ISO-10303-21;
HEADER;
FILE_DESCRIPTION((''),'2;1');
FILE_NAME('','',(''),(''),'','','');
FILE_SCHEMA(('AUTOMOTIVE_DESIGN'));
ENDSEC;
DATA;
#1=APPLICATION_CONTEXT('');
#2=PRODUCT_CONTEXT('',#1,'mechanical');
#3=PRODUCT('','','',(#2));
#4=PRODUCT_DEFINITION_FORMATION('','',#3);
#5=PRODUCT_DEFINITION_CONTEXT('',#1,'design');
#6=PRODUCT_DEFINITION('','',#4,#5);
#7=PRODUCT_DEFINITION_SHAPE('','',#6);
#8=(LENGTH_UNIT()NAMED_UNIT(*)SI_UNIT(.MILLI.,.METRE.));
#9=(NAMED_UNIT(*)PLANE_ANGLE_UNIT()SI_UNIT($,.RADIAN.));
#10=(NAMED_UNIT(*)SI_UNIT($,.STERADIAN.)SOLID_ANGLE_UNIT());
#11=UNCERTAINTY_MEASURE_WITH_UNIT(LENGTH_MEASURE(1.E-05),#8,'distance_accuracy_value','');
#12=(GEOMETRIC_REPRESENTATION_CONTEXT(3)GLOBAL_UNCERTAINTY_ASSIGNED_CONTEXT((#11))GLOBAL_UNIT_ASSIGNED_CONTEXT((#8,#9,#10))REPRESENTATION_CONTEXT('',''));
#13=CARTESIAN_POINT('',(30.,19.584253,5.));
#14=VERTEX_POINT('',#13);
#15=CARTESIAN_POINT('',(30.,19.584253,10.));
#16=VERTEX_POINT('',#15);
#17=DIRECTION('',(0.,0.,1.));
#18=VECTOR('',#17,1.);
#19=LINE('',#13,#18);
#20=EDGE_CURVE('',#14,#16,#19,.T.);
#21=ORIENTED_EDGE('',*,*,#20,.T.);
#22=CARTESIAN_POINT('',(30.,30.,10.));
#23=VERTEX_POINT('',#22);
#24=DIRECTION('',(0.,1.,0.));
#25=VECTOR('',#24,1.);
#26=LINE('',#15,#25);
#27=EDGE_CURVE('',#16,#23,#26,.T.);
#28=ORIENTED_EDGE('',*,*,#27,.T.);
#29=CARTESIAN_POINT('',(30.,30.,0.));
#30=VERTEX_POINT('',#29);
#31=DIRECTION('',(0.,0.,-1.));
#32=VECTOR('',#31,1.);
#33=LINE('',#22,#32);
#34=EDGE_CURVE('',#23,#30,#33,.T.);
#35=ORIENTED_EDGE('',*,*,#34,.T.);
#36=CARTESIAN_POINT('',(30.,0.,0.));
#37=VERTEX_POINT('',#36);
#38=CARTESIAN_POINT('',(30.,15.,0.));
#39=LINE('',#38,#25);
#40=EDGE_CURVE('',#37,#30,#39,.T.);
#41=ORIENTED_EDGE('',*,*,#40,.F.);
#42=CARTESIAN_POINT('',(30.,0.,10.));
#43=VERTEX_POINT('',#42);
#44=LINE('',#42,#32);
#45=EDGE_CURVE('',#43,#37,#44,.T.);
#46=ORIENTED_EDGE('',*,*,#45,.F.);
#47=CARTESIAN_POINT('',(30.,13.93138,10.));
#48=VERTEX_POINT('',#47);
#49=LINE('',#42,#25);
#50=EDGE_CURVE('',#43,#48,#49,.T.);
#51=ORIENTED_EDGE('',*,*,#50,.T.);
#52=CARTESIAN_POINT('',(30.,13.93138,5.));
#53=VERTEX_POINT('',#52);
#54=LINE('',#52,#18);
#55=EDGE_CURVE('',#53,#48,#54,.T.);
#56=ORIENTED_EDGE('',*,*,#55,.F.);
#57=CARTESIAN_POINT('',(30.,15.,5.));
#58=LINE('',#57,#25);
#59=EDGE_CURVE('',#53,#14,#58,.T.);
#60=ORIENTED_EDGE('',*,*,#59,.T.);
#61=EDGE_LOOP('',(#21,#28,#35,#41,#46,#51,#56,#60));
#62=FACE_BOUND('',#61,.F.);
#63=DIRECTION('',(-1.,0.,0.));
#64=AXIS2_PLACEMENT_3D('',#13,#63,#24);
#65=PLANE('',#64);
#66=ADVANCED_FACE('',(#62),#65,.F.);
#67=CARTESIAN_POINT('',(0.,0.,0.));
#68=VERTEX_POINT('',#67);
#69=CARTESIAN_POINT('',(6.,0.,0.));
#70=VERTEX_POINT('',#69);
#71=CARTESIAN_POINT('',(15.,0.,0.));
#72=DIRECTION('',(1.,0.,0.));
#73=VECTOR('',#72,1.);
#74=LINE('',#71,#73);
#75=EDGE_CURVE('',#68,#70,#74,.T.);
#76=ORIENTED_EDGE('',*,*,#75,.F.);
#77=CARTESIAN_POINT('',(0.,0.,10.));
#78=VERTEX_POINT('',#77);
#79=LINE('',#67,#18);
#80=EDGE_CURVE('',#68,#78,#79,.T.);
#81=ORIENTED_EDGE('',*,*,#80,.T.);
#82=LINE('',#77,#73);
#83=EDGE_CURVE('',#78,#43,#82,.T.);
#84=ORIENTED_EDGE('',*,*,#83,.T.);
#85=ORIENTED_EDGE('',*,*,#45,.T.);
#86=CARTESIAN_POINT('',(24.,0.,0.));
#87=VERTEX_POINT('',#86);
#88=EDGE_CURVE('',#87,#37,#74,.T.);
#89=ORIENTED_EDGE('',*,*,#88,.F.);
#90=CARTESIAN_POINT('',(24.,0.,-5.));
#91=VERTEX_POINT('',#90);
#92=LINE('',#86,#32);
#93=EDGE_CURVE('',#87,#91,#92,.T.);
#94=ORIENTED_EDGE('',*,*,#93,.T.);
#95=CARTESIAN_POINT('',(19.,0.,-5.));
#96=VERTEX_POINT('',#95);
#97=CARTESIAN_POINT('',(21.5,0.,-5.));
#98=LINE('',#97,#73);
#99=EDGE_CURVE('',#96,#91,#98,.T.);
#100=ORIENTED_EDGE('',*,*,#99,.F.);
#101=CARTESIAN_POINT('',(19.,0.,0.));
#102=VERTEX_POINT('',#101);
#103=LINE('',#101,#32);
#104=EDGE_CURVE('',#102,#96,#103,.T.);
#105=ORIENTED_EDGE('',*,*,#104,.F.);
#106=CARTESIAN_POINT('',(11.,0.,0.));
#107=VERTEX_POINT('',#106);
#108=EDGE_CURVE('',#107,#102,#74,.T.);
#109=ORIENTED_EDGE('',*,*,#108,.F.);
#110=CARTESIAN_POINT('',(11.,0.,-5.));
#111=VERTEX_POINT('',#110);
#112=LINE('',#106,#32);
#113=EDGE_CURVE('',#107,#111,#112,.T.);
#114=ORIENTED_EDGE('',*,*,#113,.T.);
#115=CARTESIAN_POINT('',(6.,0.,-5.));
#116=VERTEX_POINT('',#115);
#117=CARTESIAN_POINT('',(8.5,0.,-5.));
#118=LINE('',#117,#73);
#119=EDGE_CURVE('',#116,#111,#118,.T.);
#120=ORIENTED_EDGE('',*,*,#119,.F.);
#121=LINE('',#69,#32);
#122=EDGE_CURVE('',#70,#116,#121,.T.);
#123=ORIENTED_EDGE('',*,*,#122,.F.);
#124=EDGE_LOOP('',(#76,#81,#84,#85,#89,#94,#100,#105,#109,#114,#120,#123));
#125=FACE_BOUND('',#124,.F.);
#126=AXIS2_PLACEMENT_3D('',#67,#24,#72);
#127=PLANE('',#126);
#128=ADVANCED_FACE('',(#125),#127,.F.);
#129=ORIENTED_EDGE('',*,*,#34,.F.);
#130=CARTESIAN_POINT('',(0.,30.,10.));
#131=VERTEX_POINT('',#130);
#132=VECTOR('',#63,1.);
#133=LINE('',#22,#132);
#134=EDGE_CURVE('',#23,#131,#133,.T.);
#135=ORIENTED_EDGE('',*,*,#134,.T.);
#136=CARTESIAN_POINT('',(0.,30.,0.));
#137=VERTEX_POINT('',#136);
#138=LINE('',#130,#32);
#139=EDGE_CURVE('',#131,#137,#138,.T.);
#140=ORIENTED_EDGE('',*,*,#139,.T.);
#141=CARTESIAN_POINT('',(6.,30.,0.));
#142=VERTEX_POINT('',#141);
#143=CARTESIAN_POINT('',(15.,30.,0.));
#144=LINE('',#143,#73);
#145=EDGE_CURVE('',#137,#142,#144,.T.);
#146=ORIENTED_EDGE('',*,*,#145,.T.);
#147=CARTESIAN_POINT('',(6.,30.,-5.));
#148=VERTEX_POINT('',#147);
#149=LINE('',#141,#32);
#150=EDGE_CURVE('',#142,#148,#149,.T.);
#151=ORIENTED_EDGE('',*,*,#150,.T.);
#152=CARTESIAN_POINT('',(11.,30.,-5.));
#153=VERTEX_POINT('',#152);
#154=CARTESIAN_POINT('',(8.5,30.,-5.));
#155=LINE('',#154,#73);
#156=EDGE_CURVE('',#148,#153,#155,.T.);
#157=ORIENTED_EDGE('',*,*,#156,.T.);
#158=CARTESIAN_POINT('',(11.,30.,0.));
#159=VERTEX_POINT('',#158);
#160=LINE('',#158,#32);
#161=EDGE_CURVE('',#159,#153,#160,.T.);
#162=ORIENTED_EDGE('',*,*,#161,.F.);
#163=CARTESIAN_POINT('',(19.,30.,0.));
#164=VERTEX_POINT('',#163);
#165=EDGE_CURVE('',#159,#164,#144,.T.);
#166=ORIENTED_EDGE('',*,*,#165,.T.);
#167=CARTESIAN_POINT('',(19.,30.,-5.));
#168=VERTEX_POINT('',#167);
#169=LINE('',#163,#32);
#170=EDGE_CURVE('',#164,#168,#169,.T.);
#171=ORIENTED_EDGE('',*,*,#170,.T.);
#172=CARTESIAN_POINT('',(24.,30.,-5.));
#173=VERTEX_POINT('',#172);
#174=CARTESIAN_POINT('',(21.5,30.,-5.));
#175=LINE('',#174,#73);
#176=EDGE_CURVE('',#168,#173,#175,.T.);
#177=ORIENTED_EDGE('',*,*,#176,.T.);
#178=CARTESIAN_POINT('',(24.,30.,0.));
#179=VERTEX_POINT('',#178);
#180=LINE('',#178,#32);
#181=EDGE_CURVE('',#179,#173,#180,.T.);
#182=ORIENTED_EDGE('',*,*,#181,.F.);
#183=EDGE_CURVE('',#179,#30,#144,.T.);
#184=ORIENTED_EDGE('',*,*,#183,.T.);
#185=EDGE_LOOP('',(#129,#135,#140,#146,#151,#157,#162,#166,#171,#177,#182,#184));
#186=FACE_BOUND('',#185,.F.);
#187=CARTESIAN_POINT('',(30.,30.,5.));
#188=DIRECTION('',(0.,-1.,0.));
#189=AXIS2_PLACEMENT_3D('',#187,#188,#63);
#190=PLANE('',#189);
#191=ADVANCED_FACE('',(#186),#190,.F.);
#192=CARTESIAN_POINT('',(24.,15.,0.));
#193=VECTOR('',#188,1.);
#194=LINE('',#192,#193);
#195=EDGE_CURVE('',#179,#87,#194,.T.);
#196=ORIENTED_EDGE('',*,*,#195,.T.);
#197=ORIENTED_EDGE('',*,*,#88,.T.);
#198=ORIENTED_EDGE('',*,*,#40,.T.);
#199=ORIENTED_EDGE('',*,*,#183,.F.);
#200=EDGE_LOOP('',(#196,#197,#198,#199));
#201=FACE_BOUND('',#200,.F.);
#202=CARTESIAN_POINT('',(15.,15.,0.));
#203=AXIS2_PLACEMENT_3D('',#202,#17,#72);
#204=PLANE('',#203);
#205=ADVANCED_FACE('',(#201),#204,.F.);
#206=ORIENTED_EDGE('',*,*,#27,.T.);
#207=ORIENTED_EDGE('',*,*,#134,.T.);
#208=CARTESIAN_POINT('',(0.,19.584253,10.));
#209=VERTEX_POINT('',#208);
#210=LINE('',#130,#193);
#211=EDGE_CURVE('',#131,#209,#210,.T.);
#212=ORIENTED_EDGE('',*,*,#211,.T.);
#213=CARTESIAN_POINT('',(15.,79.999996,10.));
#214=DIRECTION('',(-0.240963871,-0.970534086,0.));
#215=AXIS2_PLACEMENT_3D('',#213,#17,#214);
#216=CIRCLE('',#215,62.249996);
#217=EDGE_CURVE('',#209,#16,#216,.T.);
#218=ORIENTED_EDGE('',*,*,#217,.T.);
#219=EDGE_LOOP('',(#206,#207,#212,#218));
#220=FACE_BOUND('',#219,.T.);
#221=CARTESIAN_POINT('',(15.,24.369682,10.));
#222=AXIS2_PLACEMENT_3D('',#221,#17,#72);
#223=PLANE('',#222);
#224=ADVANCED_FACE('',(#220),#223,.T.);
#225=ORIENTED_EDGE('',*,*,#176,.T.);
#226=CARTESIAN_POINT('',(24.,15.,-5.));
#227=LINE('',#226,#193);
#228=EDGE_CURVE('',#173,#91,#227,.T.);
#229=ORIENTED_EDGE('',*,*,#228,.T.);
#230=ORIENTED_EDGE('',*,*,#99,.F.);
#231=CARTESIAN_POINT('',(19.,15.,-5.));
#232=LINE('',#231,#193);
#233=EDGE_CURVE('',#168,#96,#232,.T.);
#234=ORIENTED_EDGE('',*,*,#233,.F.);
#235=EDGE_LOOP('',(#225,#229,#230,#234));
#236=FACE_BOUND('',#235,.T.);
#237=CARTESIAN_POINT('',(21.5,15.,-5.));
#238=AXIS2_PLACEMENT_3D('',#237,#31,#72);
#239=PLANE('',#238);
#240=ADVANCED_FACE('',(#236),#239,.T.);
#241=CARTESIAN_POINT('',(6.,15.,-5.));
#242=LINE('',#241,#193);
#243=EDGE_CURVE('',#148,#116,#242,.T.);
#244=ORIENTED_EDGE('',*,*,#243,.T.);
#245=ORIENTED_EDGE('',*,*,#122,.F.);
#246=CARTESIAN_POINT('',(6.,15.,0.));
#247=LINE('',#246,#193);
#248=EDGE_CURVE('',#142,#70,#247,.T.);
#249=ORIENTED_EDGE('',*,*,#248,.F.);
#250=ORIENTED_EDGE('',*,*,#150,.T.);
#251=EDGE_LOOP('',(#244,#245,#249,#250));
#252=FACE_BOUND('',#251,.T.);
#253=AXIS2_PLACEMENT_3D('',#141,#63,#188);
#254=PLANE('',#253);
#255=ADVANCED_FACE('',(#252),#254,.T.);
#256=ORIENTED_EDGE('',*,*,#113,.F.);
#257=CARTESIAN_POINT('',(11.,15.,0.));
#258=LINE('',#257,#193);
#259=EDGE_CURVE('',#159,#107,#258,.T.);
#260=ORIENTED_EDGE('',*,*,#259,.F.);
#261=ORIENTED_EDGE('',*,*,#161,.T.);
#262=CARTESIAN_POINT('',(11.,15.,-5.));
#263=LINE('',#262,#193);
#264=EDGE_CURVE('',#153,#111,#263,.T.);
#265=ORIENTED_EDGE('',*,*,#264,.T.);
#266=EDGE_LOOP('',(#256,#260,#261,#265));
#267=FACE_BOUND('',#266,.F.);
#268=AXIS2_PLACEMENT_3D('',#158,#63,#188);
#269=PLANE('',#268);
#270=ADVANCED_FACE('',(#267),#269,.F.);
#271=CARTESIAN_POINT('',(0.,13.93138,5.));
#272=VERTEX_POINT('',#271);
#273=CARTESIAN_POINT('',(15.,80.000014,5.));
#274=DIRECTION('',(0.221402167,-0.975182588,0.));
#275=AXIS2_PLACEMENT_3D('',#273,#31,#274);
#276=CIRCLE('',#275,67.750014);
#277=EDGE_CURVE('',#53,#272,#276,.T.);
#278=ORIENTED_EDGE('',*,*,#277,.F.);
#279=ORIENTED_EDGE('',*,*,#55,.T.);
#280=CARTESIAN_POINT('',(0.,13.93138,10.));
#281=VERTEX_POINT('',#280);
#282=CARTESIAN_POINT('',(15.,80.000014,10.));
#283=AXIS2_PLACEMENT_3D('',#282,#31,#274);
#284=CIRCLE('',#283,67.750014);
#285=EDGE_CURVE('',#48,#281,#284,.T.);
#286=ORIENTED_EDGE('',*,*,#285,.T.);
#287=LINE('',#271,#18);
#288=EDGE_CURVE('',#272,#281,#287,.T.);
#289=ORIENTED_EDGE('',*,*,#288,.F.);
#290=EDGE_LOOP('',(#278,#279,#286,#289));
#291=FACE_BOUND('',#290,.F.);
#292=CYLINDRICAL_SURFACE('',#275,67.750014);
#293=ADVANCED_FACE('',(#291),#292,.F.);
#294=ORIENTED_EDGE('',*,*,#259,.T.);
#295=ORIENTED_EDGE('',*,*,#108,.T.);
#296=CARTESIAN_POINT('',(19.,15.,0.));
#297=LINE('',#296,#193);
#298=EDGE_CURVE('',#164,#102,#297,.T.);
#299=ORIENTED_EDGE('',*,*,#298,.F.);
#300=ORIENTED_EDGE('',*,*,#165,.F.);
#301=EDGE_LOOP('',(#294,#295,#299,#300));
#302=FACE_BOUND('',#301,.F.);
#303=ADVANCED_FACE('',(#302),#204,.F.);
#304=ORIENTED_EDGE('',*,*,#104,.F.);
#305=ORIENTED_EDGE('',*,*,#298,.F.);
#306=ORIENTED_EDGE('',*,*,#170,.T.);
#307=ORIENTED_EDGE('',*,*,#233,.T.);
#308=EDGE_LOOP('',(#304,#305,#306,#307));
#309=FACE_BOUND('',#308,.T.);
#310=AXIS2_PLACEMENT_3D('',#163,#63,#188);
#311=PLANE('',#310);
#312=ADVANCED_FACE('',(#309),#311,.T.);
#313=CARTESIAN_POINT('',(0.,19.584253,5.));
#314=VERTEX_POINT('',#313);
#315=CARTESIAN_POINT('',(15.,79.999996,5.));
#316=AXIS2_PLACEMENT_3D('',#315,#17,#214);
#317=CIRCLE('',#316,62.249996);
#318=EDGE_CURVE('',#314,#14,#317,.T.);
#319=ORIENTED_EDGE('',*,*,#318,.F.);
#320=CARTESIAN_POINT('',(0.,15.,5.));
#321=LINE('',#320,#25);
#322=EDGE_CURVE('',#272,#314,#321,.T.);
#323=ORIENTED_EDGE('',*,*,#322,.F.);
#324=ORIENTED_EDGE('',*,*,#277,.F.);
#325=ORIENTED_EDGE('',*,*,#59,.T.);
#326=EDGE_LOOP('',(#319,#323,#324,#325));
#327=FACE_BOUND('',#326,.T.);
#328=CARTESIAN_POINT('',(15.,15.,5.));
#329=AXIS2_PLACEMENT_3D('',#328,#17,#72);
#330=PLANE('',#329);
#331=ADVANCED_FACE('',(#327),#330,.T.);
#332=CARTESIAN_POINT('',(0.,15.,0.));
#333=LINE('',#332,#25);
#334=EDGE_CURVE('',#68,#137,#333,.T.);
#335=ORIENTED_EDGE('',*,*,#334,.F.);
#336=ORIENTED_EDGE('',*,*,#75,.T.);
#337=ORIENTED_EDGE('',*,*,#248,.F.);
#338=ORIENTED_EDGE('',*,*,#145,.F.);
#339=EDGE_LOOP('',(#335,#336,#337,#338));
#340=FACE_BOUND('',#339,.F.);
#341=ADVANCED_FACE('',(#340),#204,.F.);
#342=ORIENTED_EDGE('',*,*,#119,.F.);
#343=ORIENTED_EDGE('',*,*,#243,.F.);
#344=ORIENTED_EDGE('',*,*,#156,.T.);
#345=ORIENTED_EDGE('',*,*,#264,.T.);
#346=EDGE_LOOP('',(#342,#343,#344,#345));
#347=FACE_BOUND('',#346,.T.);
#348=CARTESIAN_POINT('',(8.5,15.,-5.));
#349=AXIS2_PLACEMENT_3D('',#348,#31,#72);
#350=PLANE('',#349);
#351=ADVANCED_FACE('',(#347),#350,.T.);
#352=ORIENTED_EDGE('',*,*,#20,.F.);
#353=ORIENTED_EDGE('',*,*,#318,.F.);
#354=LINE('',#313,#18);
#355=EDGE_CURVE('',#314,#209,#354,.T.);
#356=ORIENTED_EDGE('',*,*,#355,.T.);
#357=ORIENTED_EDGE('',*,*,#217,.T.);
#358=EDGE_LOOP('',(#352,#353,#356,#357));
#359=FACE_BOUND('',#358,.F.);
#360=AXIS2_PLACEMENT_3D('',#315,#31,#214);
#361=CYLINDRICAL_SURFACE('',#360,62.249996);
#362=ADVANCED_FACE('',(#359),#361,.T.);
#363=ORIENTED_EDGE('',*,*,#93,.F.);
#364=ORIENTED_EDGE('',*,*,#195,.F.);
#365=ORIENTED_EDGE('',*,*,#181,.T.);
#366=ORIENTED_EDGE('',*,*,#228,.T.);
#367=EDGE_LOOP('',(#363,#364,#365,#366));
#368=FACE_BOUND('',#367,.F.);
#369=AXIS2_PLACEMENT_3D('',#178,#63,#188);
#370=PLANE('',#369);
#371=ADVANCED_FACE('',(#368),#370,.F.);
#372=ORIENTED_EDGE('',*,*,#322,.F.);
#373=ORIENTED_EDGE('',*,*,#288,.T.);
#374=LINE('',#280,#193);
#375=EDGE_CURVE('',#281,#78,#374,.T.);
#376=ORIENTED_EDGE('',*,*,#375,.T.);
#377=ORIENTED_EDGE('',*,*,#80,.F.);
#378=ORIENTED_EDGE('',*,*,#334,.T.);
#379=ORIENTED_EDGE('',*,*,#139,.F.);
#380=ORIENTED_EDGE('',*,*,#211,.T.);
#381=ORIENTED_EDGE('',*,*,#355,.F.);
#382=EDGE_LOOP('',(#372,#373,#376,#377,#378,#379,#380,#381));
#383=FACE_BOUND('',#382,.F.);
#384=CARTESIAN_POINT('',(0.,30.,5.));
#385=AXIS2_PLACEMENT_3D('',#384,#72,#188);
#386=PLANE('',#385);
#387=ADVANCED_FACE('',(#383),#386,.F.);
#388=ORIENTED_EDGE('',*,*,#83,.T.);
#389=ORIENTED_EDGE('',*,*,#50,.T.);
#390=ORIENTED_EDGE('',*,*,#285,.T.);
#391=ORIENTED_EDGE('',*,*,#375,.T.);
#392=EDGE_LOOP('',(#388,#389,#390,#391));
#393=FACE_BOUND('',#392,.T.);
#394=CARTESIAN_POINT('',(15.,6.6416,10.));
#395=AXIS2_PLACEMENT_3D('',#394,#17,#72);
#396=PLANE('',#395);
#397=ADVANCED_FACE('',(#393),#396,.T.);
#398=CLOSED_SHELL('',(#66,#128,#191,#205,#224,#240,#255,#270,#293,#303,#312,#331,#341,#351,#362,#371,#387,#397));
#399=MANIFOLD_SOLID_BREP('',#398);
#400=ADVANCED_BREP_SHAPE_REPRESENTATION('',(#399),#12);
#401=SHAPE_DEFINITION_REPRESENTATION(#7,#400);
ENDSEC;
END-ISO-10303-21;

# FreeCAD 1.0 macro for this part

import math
import FreeCAD as App
import Part
import Sketcher
from FreeCAD import Vector
Q = App.Units.Quantity

doc = App.newDocument("Part")
body = doc.addObject("PartDesign::Body", "Body")

sketch1 = doc.addObject("Sketcher::SketchObject", "Sketch")
body.addObject(sketch1)
sketch1.AttachmentSupport = (doc.XY_Plane, [""])
sketch1.MapMode = "FlatFace"
sketch1.addGeometry([
    Part.LineSegment(Vector(0, 30, 0), Vector(0, 0, 0)),
    Part.LineSegment(Vector(0, 0, 0), Vector(30, 0, 0)),
    Part.LineSegment(Vector(30, 0, 0), Vector(30, 30, 0)),
    Part.LineSegment(Vector(30, 30, 0), Vector(0, 30, 0)),
], False)
sketch1.addConstraint([
    Sketcher.Constraint("Coincident", 0, 2, 1, 1),
    Sketcher.Constraint("Coincident", 1, 2, 2, 1),
    Sketcher.Constraint("Coincident", 2, 2, 3, 1),
    Sketcher.Constraint("Coincident", 3, 2, 0, 1),
    Sketcher.Constraint("Vertical", 0),
    Sketcher.Constraint("Horizontal", 1),
    Sketcher.Constraint("Vertical", 2),
    Sketcher.Constraint("Horizontal", 3),
    Sketcher.Constraint("Coincident", 0, 2, -1, 1),
    Sketcher.Constraint("Equal", 3, 0),
    Sketcher.Constraint("DistanceX", 1, 1, 1, 2, Q("30 mm")),
])
pad1 = doc.addObject("PartDesign::Pad", "Pad")
body.addObject(pad1)
pad1.Profile = sketch1
pad1.Length = 5

sketch2 = doc.addObject("Sketcher::SketchObject", "Sketch001")
body.addObject(sketch2)
sketch2.AttachmentSupport = (doc.XY_Plane, [""])
sketch2.MapMode = "FlatFace"
sketch2.AttachmentOffset = App.Placement(Vector(0, 0, 5), App.Rotation())
sketch2.addGeometry([
    Part.LineSegment(Vector(0, 30, 0), Vector(0, 19.584253, 0)),
    Part.ArcOfCircle(Part.Circle(Vector(15, 79.999996, 0), Vector(0, 0, 1), 62.249996), math.radians(-103.943436), math.radians(-76.056564)),
    Part.LineSegment(Vector(30, 19.584253, 0), Vector(30, 30, 0)),
    Part.LineSegment(Vector(30, 30, 0), Vector(0, 30, 0)),
    Part.LineSegment(Vector(30, 0, 0), Vector(30, 13.93138, 0)),
    Part.ArcOfCircle(Part.Circle(Vector(15, 80.000014, 0), Vector(0, 0, 1), 67.750014), math.radians(-102.791402), math.radians(-77.208598)),
    Part.LineSegment(Vector(0, 13.93138, 0), Vector(0, 0, 0)),
    Part.LineSegment(Vector(0, 0, 0), Vector(30, 0, 0)),
], False)
sketch2.addConstraint([
    Sketcher.Constraint("Coincident", 0, 2, 1, 1),
    Sketcher.Constraint("Coincident", 1, 2, 2, 1),
    Sketcher.Constraint("Coincident", 2, 2, 3, 1),
    Sketcher.Constraint("Coincident", 3, 2, 0, 1),
    Sketcher.Constraint("Coincident", 4, 2, 5, 2),
    Sketcher.Constraint("Coincident", 5, 1, 6, 1),
    Sketcher.Constraint("Coincident", 6, 2, 7, 1),
    Sketcher.Constraint("Coincident", 7, 2, 4, 1),
    Sketcher.Constraint("Vertical", 0),
    Sketcher.Constraint("Vertical", 2),
    Sketcher.Constraint("Horizontal", 3),
    Sketcher.Constraint("Vertical", 4),
    Sketcher.Constraint("Vertical", 6),
    Sketcher.Constraint("Horizontal", 7),
    Sketcher.Constraint("Coincident", 6, 2, -1, 1),
    Sketcher.Constraint("PointOnObject", 0, 2, -2),
    Sketcher.Constraint("Horizontal", 0, 2, 1, 2),
    Sketcher.Constraint("Horizontal", 4, 2, 5, 1),
    Sketcher.Constraint("Vertical", 1, 3, 5, 3),
    Sketcher.Constraint("DistanceX", 3, 2, 3, 1, Q("30 mm")),
    Sketcher.Constraint("DistanceY", -1, 1, 2, 2, Q("30 mm")),
    Sketcher.Constraint("Radius", 1, Q("62.249996 mm")),
    Sketcher.Constraint("Radius", 5, Q("67.750014 mm")),
    Sketcher.Constraint("DistanceY", 4, 1, 4, 2, Q("13.93138 mm")),
    Sketcher.Constraint("DistanceY", 0, 2, 0, 1, Q("10.415747 mm")),
])
pad2 = doc.addObject("PartDesign::Pad", "Pad001")
body.addObject(pad2)
pad2.Profile = sketch2
pad2.Length = 5

sketch3 = doc.addObject("Sketcher::SketchObject", "Sketch002")
body.addObject(sketch3)
sketch3.AttachmentSupport = (doc.XY_Plane, [""])
sketch3.MapMode = "FlatFace"
sketch3.addGeometry([
    Part.LineSegment(Vector(6, 0, 0), Vector(6, 30, 0)),
    Part.LineSegment(Vector(6, 30, 0), Vector(11, 30, 0)),
    Part.LineSegment(Vector(11, 30, 0), Vector(11, 0, 0)),
    Part.LineSegment(Vector(11, 0, 0), Vector(6, 0, 0)),
    Part.LineSegment(Vector(19, 0, 0), Vector(19, 30, 0)),
    Part.LineSegment(Vector(19, 30, 0), Vector(24, 30, 0)),
    Part.LineSegment(Vector(24, 30, 0), Vector(24, 0, 0)),
    Part.LineSegment(Vector(24, 0, 0), Vector(19, 0, 0)),
], False)
sketch3.addConstraint([
    Sketcher.Constraint("Coincident", 0, 2, 1, 1),
    Sketcher.Constraint("Coincident", 1, 2, 2, 1),
    Sketcher.Constraint("Coincident", 2, 2, 3, 1),
    Sketcher.Constraint("Coincident", 3, 2, 0, 1),
    Sketcher.Constraint("Coincident", 4, 2, 5, 1),
    Sketcher.Constraint("Coincident", 5, 2, 6, 1),
    Sketcher.Constraint("Coincident", 6, 2, 7, 1),
    Sketcher.Constraint("Coincident", 7, 2, 4, 1),
    Sketcher.Constraint("Vertical", 0),
    Sketcher.Constraint("Horizontal", 1),
    Sketcher.Constraint("Vertical", 2),
    Sketcher.Constraint("Horizontal", 3),
    Sketcher.Constraint("Vertical", 4),
    Sketcher.Constraint("Horizontal", 5),
    Sketcher.Constraint("Vertical", 6),
    Sketcher.Constraint("Horizontal", 7),
    Sketcher.Constraint("PointOnObject", 2, 2, -1),
    Sketcher.Constraint("PointOnObject", 6, 2, -1),
    Sketcher.Constraint("Horizontal", 1, 2, 4, 2),
    Sketcher.Constraint("Equal", 3, 5),
    Sketcher.Constraint("DistanceX", 1, 1, 1, 2, Q("5 mm")),
    Sketcher.Constraint("DistanceY", 0, 1, 0, 2, Q("30 mm")),
    Sketcher.Constraint("DistanceX", -1, 1, 0, 2, Q("6 mm")),
    Sketcher.Constraint("DistanceX", -1, 1, 4, 2, Q("19 mm")),
])
pad3 = doc.addObject("PartDesign::Pad", "Pad002")
body.addObject(pad3)
pad3.Profile = sketch3
pad3.Length = 5
pad3.Reversed = True

doc.recompute()
